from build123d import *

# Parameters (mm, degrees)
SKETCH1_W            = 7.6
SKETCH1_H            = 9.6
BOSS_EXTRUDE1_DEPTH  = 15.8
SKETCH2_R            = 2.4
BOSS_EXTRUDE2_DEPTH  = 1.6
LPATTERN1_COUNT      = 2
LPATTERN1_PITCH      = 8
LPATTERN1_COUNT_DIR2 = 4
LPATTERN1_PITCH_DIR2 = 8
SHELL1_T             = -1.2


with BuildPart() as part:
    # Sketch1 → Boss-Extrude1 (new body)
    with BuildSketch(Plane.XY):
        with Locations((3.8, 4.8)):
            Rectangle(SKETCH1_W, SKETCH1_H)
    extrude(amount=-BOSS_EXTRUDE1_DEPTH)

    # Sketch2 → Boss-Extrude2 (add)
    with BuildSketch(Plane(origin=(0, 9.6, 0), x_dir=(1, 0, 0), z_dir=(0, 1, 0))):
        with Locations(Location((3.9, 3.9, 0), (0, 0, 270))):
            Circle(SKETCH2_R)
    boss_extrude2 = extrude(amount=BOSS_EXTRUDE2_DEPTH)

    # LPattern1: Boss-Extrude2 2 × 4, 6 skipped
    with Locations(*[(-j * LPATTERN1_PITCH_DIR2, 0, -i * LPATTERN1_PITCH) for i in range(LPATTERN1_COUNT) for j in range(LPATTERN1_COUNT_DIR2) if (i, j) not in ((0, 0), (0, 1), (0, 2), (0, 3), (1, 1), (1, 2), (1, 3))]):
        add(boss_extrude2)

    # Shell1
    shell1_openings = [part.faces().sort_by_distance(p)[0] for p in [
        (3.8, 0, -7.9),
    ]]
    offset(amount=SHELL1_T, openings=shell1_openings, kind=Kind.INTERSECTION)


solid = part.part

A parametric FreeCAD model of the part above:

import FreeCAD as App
import Part
import Sketcher

V = App.Vector
Q = App.Units.Quantity


def faces_at(feature, points):
    """Names of the faces that lie closest to the given points."""
    faces = feature.Shape.Faces
    near = lambda p: min(range(len(faces)), key=lambda i: faces[i].distToShape(Part.Vertex(*p))[0])
    return sorted({f"Face{near(p) + 1}" for p in points})

doc = App.newDocument("Part")
body = doc.addObject("PartDesign::Body", "Body")

# Sketch on XY plane
sketch1 = body.newObject("Sketcher::SketchObject", "Sketch")
sketch1.AttachmentSupport = (doc.getObject("XY_Plane"), [""])
sketch1.MapMode = "FlatFace"
sketch1.addGeometry([
    Part.LineSegment(V(0, 10, 0), V(0, 0, 0)),
    Part.LineSegment(V(0, 0, 0), V(8, 0, 0)),
    Part.LineSegment(V(8, 0, 0), V(8, 10, 0)),
    Part.LineSegment(V(8, 10, 0), V(0, 10, 0)),
], False)
sketch1.addConstraint([
    Sketcher.Constraint("Coincident", 0, 2, 1, 1),
    Sketcher.Constraint("Coincident", 1, 2, 2, 1),
    Sketcher.Constraint("Coincident", 2, 2, 3, 1),
    Sketcher.Constraint("Coincident", 3, 2, 0, 1),
    Sketcher.Constraint("Vertical", 0),
    Sketcher.Constraint("Horizontal", 1),
    Sketcher.Constraint("Vertical", 2),
    Sketcher.Constraint("Horizontal", 3),
    Sketcher.Constraint("Coincident", 0, 2, -1, 1),
    Sketcher.Constraint("DistanceX", 1, 1, 1, 2, Q("7.6 mm")),
    Sketcher.Constraint("DistanceY", 0, 2, 0, 1, Q("9.6 mm")),
])
pad1 = body.newObject("PartDesign::Pad", "Pad")
pad1.Profile = sketch1
pad1.Length = 15.8
pad1.Reversed = True

# Sketch on XZ plane
sketch2 = body.newObject("Sketcher::SketchObject", "Sketch001")
sketch2.AttachmentSupport = (doc.getObject("XZ_Plane"), [""])
sketch2.MapMode = "FlatFace"
sketch2.AttachmentOffset = App.Placement(V(0, 0, -9.6), App.Rotation())
sketch2.addGeometry(Part.Circle(V(3.9, -3.9, 0), V(0, 0, 1), 2.4), False)
sketch2.addConstraint([
    Sketcher.Constraint("Diameter", 0, Q("4.8 mm")),
    Sketcher.Constraint("DistanceX", -1, 1, 0, 3, Q("3.9 mm")),
    Sketcher.Constraint("DistanceY", 0, 3, -1, 1, Q("3.9 mm")),
])
pad2 = body.newObject("PartDesign::Pad", "Pad001")
pad2.Profile = sketch2
pad2.Length = 1.6
pad2.Reversed = True
doc.recompute()

linearpattern = body.newObject("PartDesign::LinearPattern", "LinearPattern")
linearpattern.Originals = [pad2]
linearpattern.Direction = (doc.getObject("Z_Axis"), [""])
linearpattern.Mode = "offset"
linearpattern.Offset = 8
linearpattern.Occurrences = 2
linearpattern.Reversed = True
body.Tip = linearpattern
doc.recompute()

thickness = body.newObject("PartDesign::Thickness", "Thickness")
thickness.Base = (linearpattern, faces_at(linearpattern, [(3.8, 0, -7.9)]))
thickness.Value = 1.2
thickness.Reversed = True
thickness.Join = "Intersection"

doc.recompute()
